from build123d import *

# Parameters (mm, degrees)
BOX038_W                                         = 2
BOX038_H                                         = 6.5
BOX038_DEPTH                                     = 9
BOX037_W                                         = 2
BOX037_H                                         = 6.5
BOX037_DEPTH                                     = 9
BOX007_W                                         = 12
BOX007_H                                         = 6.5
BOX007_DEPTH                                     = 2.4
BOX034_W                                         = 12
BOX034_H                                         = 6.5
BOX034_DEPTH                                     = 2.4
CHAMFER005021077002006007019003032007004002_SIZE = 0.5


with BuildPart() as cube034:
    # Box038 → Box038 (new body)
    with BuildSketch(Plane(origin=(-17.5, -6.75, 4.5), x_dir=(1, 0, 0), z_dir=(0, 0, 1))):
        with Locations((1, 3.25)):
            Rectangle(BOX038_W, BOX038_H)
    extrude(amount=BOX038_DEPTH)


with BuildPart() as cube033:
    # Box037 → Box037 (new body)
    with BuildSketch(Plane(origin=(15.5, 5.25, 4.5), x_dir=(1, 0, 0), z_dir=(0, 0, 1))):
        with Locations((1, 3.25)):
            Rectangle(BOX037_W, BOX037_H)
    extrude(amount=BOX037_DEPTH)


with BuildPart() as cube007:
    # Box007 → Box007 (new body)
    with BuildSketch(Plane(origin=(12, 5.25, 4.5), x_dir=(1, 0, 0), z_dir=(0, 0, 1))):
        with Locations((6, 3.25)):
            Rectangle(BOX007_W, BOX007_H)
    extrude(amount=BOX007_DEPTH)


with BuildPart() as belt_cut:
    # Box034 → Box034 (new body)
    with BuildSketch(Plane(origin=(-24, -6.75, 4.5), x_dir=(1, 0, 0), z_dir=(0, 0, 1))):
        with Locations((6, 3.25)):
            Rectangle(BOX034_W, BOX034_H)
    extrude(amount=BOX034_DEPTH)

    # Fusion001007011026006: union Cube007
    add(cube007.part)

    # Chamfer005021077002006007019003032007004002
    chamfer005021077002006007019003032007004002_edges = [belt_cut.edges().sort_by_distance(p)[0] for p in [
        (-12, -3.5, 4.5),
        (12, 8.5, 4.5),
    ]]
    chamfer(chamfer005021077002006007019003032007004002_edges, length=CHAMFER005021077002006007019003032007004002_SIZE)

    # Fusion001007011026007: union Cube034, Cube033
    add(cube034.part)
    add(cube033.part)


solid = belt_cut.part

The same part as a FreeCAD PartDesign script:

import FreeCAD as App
import Part
import Sketcher

V = App.Vector
Q = App.Units.Quantity


def edges_at(feature, points):
    """Names of the edges that pass closest to the given points."""
    edges = feature.Shape.Edges
    near = lambda p: min(range(len(edges)), key=lambda i: edges[i].distToShape(Part.Vertex(*p))[0])
    return sorted({f"Edge{near(p) + 1}" for p in points})

doc = App.newDocument("Part")
body = doc.addObject("PartDesign::Body", "Body")

# Sketch on XY plane
sketch1 = body.newObject("Sketcher::SketchObject", "Sketch")
sketch1.AttachmentSupport = (doc.getObject("XY_Plane"), [""])
sketch1.MapMode = "FlatFace"
sketch1.AttachmentOffset = App.Placement(V(0, 0, 4.5), App.Rotation())
sketch1.addGeometry(Part.LineSegment(V(-17.5, -0.2, 0), V(-17.5, -6.8, 0)), False)
sketch1.addGeometry(Part.LineSegment(V(-17.5, -6.8, 0), V(-15.5, -6.8, 0)), False)
sketch1.addGeometry(Part.LineSegment(V(-15.5, -6.8, 0), V(-15.5, -0.2, 0)), False)
sketch1.addGeometry(Part.LineSegment(V(-15.5, -0.2, 0), V(-17.5, -0.2, 0)), False)
sketch1.addConstraint(Sketcher.Constraint("Coincident", 0, 2, 1, 1))
sketch1.addConstraint(Sketcher.Constraint("Coincident", 1, 2, 2, 1))
sketch1.addConstraint(Sketcher.Constraint("Coincident", 2, 2, 3, 1))
sketch1.addConstraint(Sketcher.Constraint("Coincident", 3, 2, 0, 1))
sketch1.addConstraint(Sketcher.Constraint("Vertical", 0))
sketch1.addConstraint(Sketcher.Constraint("Horizontal", 1))
sketch1.addConstraint(Sketcher.Constraint("Vertical", 2))
sketch1.addConstraint(Sketcher.Constraint("Horizontal", 3))
sketch1.addConstraint(Sketcher.Constraint("DistanceX", 1, 1, 1, 2, Q("2 mm")))
sketch1.addConstraint(Sketcher.Constraint("DistanceY", 0, 2, 0, 1, Q("6.5 mm")))
sketch1.addConstraint(Sketcher.Constraint("DistanceX", 0, 2, -1, 1, Q("17.5 mm")))
sketch1.addConstraint(Sketcher.Constraint("DistanceY", 0, 2, -1, 1, Q("6.75 mm")))
pad1 = body.newObject("PartDesign::Pad", "Pad")
pad1.Profile = sketch1
pad1.Length = 9
body2 = doc.addObject("PartDesign::Body", "Body001")

# Sketch on XY plane
sketch2 = body2.newObject("Sketcher::SketchObject", "Sketch001")
sketch2.AttachmentSupport = (doc.getObject("XY_Plane001"), [""])
sketch2.MapMode = "FlatFace"
sketch2.AttachmentOffset = App.Placement(V(0, 0, 4.5), App.Rotation())
sketch2.addGeometry(Part.LineSegment(V(15.5, 11.8, 0), V(15.5, 5.2, 0)), False)
sketch2.addGeometry(Part.LineSegment(V(15.5, 5.2, 0), V(17.5, 5.2, 0)), False)
sketch2.addGeometry(Part.LineSegment(V(17.5, 5.2, 0), V(17.5, 11.8, 0)), False)
sketch2.addGeometry(Part.LineSegment(V(17.5, 11.8, 0), V(15.5, 11.8, 0)), False)
sketch2.addConstraint(Sketcher.Constraint("Coincident", 0, 2, 1, 1))
sketch2.addConstraint(Sketcher.Constraint("Coincident", 1, 2, 2, 1))
sketch2.addConstraint(Sketcher.Constraint("Coincident", 2, 2, 3, 1))
sketch2.addConstraint(Sketcher.Constraint("Coincident", 3, 2, 0, 1))
sketch2.addConstraint(Sketcher.Constraint("Vertical", 0))
sketch2.addConstraint(Sketcher.Constraint("Horizontal", 1))
sketch2.addConstraint(Sketcher.Constraint("Vertical", 2))
sketch2.addConstraint(Sketcher.Constraint("Horizontal", 3))
sketch2.addConstraint(Sketcher.Constraint("DistanceX", 1, 1, 1, 2, Q("2 mm")))
sketch2.addConstraint(Sketcher.Constraint("DistanceY", 0, 2, 0, 1, Q("6.5 mm")))
sketch2.addConstraint(Sketcher.Constraint("DistanceX", -1, 1, 0, 2, Q("15.5 mm")))
sketch2.addConstraint(Sketcher.Constraint("DistanceY", -1, 1, 0, 2, Q("5.25 mm")))
pad2 = body2.newObject("PartDesign::Pad", "Pad001")
pad2.Profile = sketch2
pad2.Length = 9
body3 = doc.addObject("PartDesign::Body", "Body002")

# Sketch on XY plane
sketch3 = body3.newObject("Sketcher::SketchObject", "Sketch002")
sketch3.AttachmentSupport = (doc.getObject("XY_Plane002"), [""])
sketch3.MapMode = "FlatFace"
sketch3.AttachmentOffset = App.Placement(V(0, 0, 4.5), App.Rotation())
sketch3.addGeometry(Part.LineSegment(V(12, 12, 0), V(12, 5, 0)), False)
sketch3.addGeometry(Part.LineSegment(V(12, 5, 0), V(24, 5, 0)), False)
sketch3.addGeometry(Part.LineSegment(V(24, 5, 0), V(24, 12, 0)), False)
sketch3.addGeometry(Part.LineSegment(V(24, 12, 0), V(12, 12, 0)), False)
sketch3.addConstraint(Sketcher.Constraint("Coincident", 0, 2, 1, 1))
sketch3.addConstraint(Sketcher.Constraint("Coincident", 1, 2, 2, 1))
sketch3.addConstraint(Sketcher.Constraint("Coincident", 2, 2, 3, 1))
sketch3.addConstraint(Sketcher.Constraint("Coincident", 3, 2, 0, 1))
sketch3.addConstraint(Sketcher.Constraint("Vertical", 0))
sketch3.addConstraint(Sketcher.Constraint("Horizontal", 1))
sketch3.addConstraint(Sketcher.Constraint("Vertical", 2))
sketch3.addConstraint(Sketcher.Constraint("Horizontal", 3))
sketch3.addConstraint(Sketcher.Constraint("DistanceX", 1, 1, 1, 2, Q("12 mm")))
sketch3.addConstraint(Sketcher.Constraint("DistanceY", 0, 2, 0, 1, Q("6.5 mm")))
sketch3.addConstraint(Sketcher.Constraint("DistanceX", -1, 1, 0, 2, Q("12 mm")))
sketch3.addConstraint(Sketcher.Constraint("DistanceY", -1, 1, 0, 2, Q("5.25 mm")))
pad3 = body3.newObject("PartDesign::Pad", "Pad002")
pad3.Profile = sketch3
pad3.Length = 2.4
body4 = doc.addObject("PartDesign::Body", "Body003")
body4.AllowCompound = True

# Sketch on XY plane
sketch4 = body4.newObject("Sketcher::SketchObject", "Sketch003")
sketch4.AttachmentSupport = (doc.getObject("XY_Plane003"), [""])
sketch4.MapMode = "FlatFace"
sketch4.AttachmentOffset = App.Placement(V(0, 0, 4.5), App.Rotation())
sketch4.addGeometry(Part.LineSegment(V(-24, 0, 0), V(-24, -7, 0)), False)
sketch4.addGeometry(Part.LineSegment(V(-24, -7, 0), V(-12, -7, 0)), False)
sketch4.addGeometry(Part.LineSegment(V(-12, -7, 0), V(-12, 0, 0)), False)
sketch4.addGeometry(Part.LineSegment(V(-12, 0, 0), V(-24, 0, 0)), False)
sketch4.addConstraint(Sketcher.Constraint("Coincident", 0, 2, 1, 1))
sketch4.addConstraint(Sketcher.Constraint("Coincident", 1, 2, 2, 1))
sketch4.addConstraint(Sketcher.Constraint("Coincident", 2, 2, 3, 1))
sketch4.addConstraint(Sketcher.Constraint("Coincident", 3, 2, 0, 1))
sketch4.addConstraint(Sketcher.Constraint("Vertical", 0))
sketch4.addConstraint(Sketcher.Constraint("Horizontal", 1))
sketch4.addConstraint(Sketcher.Constraint("Vertical", 2))
sketch4.addConstraint(Sketcher.Constraint("Horizontal", 3))
sketch4.addConstraint(Sketcher.Constraint("DistanceX", 1, 1, 1, 2, Q("12 mm")))
sketch4.addConstraint(Sketcher.Constraint("DistanceY", 0, 2, 0, 1, Q("6.5 mm")))
sketch4.addConstraint(Sketcher.Constraint("DistanceX", 0, 2, -1, 1, Q("24 mm")))
sketch4.addConstraint(Sketcher.Constraint("DistanceY", 0, 2, -1, 1, Q("6.75 mm")))
pad4 = body4.newObject("PartDesign::Pad", "Pad003")
pad4.Profile = sketch4
pad4.Length = 2.4
doc.recompute()

boolean = body4.newObject("PartDesign::Boolean", "Boolean")
boolean.Type = "Fuse"
boolean.addObjects([body3])
doc.recompute()

chamfer = body4.newObject("PartDesign::Chamfer", "Chamfer")
chamfer.Base = (boolean, edges_at(boolean, [(-12, -3.5, 4.5), (12, 8.5, 4.5)]))
chamfer.Size = 0.5
doc.recompute()

boolean2 = body4.newObject("PartDesign::Boolean", "Boolean001")
boolean2.Type = "Fuse"
boolean2.addObjects([body])
doc.recompute()

boolean3 = body4.newObject("PartDesign::Boolean", "Boolean002")
boolean3.Type = "Fuse"
boolean3.addObjects([body2])

doc.recompute()
